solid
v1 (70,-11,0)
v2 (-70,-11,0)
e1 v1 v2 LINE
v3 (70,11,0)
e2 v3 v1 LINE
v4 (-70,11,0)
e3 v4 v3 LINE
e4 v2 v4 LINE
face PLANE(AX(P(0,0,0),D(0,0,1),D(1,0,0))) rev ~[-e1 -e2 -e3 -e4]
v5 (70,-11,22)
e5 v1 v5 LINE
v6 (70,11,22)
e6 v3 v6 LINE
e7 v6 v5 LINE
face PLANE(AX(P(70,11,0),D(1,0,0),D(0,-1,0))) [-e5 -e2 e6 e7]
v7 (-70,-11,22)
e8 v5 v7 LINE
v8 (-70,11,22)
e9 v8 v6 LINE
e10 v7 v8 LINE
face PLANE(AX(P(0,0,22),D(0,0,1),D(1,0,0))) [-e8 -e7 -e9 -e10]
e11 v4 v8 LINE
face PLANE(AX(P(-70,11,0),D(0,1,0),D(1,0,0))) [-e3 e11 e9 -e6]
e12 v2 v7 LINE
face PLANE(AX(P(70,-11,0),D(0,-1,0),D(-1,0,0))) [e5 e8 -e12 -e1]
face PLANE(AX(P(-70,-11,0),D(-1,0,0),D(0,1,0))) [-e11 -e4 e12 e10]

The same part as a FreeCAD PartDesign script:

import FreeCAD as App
import Part
import Sketcher
from FreeCAD import Vector

doc = App.newDocument("Part")
body = doc.addObject("PartDesign::Body", "Body")

# Sketch on XY plane
sketch1 = body.newObject("Sketcher::SketchObject", "Sketch")
sketch1.AttachmentSupport = (doc.getObject("XY_Plane"), [""])
sketch1.MapMode = "FlatFace"
sketch1.addGeometry([
    Part.LineSegment(Vector(70, -11, 0), Vector(70, 11, 0)),
    Part.LineSegment(Vector(70, 11, 0), Vector(-70, 11, 0)),
    Part.LineSegment(Vector(-70, 11, 0), Vector(-70, -11, 0)),
    Part.LineSegment(Vector(-70, -11, 0), Vector(70, -11, 0)),
], False)
sketch1.addConstraint([
    Sketcher.Constraint("Coincident", 0, 2, 1, 1),
    Sketcher.Constraint("Coincident", 1, 2, 2, 1),
    Sketcher.Constraint("Coincident", 2, 2, 3, 1),
    Sketcher.Constraint("Coincident", 3, 2, 0, 1),
    Sketcher.Constraint("Vertical", 0),
    Sketcher.Constraint("Horizontal", 1),
    Sketcher.Constraint("Vertical", 2),
    Sketcher.Constraint("Horizontal", 3),
    Sketcher.Constraint("Symmetric", 0, 2, 2, 2, -1, 1),
    Sketcher.Constraint("DistanceX", 1, 2, 1, 1, 140.0),
    Sketcher.Constraint("DistanceY", 0, 1, 0, 2, 22.0),
])
pad1 = body.newObject("PartDesign::Pad", "Pad")
pad1.Profile = sketch1
pad1.Length = 22

doc.recompute()
